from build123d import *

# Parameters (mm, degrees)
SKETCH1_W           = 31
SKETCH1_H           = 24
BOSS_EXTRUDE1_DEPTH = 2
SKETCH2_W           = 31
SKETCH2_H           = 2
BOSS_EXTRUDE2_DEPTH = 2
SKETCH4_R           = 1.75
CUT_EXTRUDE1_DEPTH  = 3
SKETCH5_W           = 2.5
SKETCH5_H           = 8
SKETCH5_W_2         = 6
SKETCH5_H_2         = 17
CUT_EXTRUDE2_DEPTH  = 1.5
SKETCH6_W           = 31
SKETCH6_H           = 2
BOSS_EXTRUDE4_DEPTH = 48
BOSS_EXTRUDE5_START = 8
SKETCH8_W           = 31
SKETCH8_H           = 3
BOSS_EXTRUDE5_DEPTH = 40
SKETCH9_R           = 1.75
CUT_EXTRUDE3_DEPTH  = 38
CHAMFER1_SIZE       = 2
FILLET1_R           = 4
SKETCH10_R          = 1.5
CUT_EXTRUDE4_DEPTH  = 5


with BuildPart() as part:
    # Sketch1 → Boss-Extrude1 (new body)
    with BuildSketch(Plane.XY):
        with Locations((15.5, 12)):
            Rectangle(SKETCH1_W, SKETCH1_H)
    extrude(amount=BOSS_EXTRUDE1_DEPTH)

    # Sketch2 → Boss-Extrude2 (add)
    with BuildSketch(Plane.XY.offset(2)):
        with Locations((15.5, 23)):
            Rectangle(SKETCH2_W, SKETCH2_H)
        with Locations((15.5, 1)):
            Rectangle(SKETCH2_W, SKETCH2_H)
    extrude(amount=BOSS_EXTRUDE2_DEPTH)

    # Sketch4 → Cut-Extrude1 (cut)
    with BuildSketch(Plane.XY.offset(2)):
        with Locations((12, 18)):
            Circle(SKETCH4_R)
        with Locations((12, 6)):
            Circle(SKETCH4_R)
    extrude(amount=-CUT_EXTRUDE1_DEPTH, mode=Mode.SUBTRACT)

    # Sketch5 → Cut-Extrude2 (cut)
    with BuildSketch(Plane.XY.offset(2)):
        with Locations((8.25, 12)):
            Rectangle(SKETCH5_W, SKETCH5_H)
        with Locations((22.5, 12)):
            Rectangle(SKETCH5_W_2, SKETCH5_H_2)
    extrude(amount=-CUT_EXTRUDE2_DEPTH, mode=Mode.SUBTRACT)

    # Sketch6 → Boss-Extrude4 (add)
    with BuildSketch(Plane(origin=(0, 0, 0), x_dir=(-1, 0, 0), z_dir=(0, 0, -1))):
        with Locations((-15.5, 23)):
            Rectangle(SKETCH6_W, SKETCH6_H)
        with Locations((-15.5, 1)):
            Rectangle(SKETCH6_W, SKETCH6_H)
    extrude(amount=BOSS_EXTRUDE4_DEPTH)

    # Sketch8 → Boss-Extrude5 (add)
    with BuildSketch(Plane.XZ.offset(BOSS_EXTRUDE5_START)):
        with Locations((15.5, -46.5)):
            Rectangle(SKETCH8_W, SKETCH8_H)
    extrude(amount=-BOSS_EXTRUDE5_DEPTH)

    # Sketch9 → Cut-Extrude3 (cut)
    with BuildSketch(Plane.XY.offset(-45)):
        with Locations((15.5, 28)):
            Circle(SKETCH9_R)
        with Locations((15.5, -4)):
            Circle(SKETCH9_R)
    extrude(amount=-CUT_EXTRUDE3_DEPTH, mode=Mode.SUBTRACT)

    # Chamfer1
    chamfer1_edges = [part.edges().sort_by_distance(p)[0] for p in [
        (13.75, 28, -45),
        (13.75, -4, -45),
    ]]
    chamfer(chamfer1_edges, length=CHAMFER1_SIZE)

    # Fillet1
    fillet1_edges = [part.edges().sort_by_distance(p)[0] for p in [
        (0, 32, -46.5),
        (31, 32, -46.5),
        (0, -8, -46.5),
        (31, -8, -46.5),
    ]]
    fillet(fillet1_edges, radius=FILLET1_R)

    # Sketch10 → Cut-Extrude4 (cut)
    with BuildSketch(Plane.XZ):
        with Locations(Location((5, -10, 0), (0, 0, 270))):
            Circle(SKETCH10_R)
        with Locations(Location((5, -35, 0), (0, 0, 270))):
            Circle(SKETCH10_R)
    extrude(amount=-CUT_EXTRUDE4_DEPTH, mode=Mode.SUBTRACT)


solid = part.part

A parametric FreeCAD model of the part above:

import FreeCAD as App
import Part
import Sketcher

V = App.Vector
Q = App.Units.Quantity


def edges_at(feature, points):
    """Names of the edges that pass closest to the given points."""
    edges = feature.Shape.Edges
    near = lambda p: min(range(len(edges)), key=lambda i: edges[i].distToShape(Part.Vertex(*p))[0])
    return sorted({f"Edge{near(p) + 1}" for p in points})


def add_polygon(sketch, points):
    """Adds a closed chain of lines whose ends are joined by coincident constraints."""
    first, n = sketch.GeometryCount, len(points)
    for a, b in zip(points, points[1:] + points[:1]):
        sketch.addGeometry(Part.LineSegment(App.Vector(*a, 0), App.Vector(*b, 0)), False)
    for i in range(n):
        sketch.addConstraint(Sketcher.Constraint("Coincident", first + i, 2, first + (i + 1) % n, 1))

doc = App.newDocument("Part")
params = doc.addObject("Spreadsheet::Sheet", "Params")
for row, (alias, value) in enumerate([
    ("sketch1_width", "31 mm"),
    ("sketch1_height", "24 mm"),
    ("pad1_length", "2 mm"),
    ("sketch2_width", "31 mm"),
    ("sketch2_height", "2 mm"),
    ("pad2_length", "2 mm"),
    ("sketch3_diameter", "3.5 mm"),
    ("pocket1_length", "3 mm"),
    ("sketch4_width", "6 mm"),
    ("sketch4_height", "8 mm"),
    ("sketch4_height2", "17 mm"),
    ("sketch4_width2", "2.5 mm"),
    ("pocket2_length", "1.5 mm"),
    ("sketch5_width", "31 mm"),
    ("sketch5_height", "2 mm"),
    ("pad3_length", "48 mm"),
    ("sketch6_width", "31 mm"),
    ("sketch6_height", "3 mm"),
    ("pad4_length", "40 mm"),
    ("sketch7_diameter", "3.5 mm"),
    ("pocket3_length", "38 mm"),
    ("chamfer_size", "2 mm"),
    ("fillet_radius", "4 mm"),
    ("sketch8_diameter", "3 mm"),
    ("pocket4_length", "5 mm"),
], start=1):
    params.set(f"A{row}", alias)
    params.set(f"B{row}", "=" + value)
    params.setAlias(f"B{row}", alias)

body = doc.addObject("PartDesign::Body", "Body")

# Sketch on XY plane
sketch1 = body.newObject("Sketcher::SketchObject", "Sketch")
sketch1.AttachmentSupport = (doc.getObject("XY_Plane"), [""])
sketch1.MapMode = "FlatFace"
add_polygon(sketch1, [(0, 24), (0, 0), (31, 0), (31, 24)])  # lines 0-3
sketch1.addConstraint(Sketcher.Constraint("Vertical", 0))
sketch1.addConstraint(Sketcher.Constraint("Horizontal", 1))
sketch1.addConstraint(Sketcher.Constraint("Vertical", 2))
sketch1.addConstraint(Sketcher.Constraint("Horizontal", 3))
sketch1.addConstraint(Sketcher.Constraint("Coincident", 0, 2, -1, 1))
sketch1.addConstraint(Sketcher.Constraint("DistanceX", 1, 1, 1, 2, Q("31 mm")))
sketch1.addConstraint(Sketcher.Constraint("DistanceY", 0, 2, 0, 1, Q("24 mm")))
sketch1.setExpression("Constraints[9]", "Params.sketch1_width")
sketch1.setExpression("Constraints[10]", "Params.sketch1_height")
pad1 = body.newObject("PartDesign::Pad", "Pad")
pad1.Profile = sketch1
pad1.setExpression("Length", "Params.pad1_length")

# Sketch on XY plane
sketch2 = body.newObject("Sketcher::SketchObject", "Sketch001")
sketch2.AttachmentSupport = (doc.getObject("XY_Plane"), [""])
sketch2.MapMode = "FlatFace"
sketch2.AttachmentOffset = App.Placement(V(0, 0, 2), App.Rotation())
add_polygon(sketch2, [(0, 24), (0, 22), (31, 22), (31, 24)])  # lines 0-3
add_polygon(sketch2, [(0, 2), (0, 0), (31, 0), (31, 2)])  # lines 4-7
sketch2.addConstraint(Sketcher.Constraint("Vertical", 0))
sketch2.addConstraint(Sketcher.Constraint("Horizontal", 1))
sketch2.addConstraint(Sketcher.Constraint("Vertical", 2))
sketch2.addConstraint(Sketcher.Constraint("Horizontal", 3))
sketch2.addConstraint(Sketcher.Constraint("Vertical", 4))
sketch2.addConstraint(Sketcher.Constraint("Horizontal", 5))
sketch2.addConstraint(Sketcher.Constraint("Vertical", 6))
sketch2.addConstraint(Sketcher.Constraint("Horizontal", 7))
sketch2.addConstraint(Sketcher.Constraint("Coincident", 4, 2, -1, 1))
sketch2.addConstraint(Sketcher.Constraint("PointOnObject", 0, 2, -2))
sketch2.addConstraint(Sketcher.Constraint("Vertical", 2, 2, 5, 2))
sketch2.addConstraint(Sketcher.Constraint("Equal", 2, 4))
sketch2.addConstraint(Sketcher.Constraint("DistanceX", 1, 1, 1, 2, Q("31 mm")))
sketch2.addConstraint(Sketcher.Constraint("DistanceY", 0, 2, 0, 1, Q("2 mm")))
sketch2.addConstraint(Sketcher.Constraint("DistanceY", -1, 1, 0, 2, Q("22 mm")))
sketch2.setExpression("Constraints[20]", "Params.sketch2_width")
sketch2.setExpression("Constraints[21]", "Params.sketch2_height")
pad2 = body.newObject("PartDesign::Pad", "Pad001")
pad2.Profile = sketch2
pad2.setExpression("Length", "Params.pad2_length")

# Sketch on XY plane
sketch3 = body.newObject("Sketcher::SketchObject", "Sketch002")
sketch3.AttachmentSupport = (doc.getObject("XY_Plane"), [""])
sketch3.MapMode = "FlatFace"
sketch3.AttachmentOffset = App.Placement(V(0, 0, 2), App.Rotation())
sketch3.addGeometry(Part.Circle(V(12, 18, 0), V(0, 0, 1), 1.8), False)
sketch3.addGeometry(Part.Circle(V(12, 6, 0), V(0, 0, 1), 1.8), False)
sketch3.addConstraint(Sketcher.Constraint("Equal", 0, 1))
sketch3.addConstraint(Sketcher.Constraint("Vertical", 0, 3, 1, 3))
sketch3.addConstraint(Sketcher.Constraint("Diameter", 0, Q("3.5 mm")))
sketch3.addConstraint(Sketcher.Constraint("DistanceX", -1, 1, 0, 3, Q("12 mm")))
sketch3.addConstraint(Sketcher.Constraint("DistanceY", -1, 1, 0, 3, Q("18 mm")))
sketch3.addConstraint(Sketcher.Constraint("DistanceY", -1, 1, 1, 3, Q("6 mm")))
sketch3.setExpression("Constraints[2]", "Params.sketch3_diameter")
pocket1 = body.newObject("PartDesign::Pocket", "Pocket")
pocket1.Profile = sketch3
pocket1.setExpression("Length", "Params.pocket1_length")

# Sketch on XY plane
sketch4 = body.newObject("Sketcher::SketchObject", "Sketch003")
sketch4.AttachmentSupport = (doc.getObject("XY_Plane"), [""])
sketch4.MapMode = "FlatFace"
sketch4.AttachmentOffset = App.Placement(V(0, 0, 2), App.Rotation())
add_polygon(sketch4, [(7, 16), (7, 8), (9.5, 8), (9.5, 16)])  # lines 0-3
add_polygon(sketch4, [(19.5, 20.5), (19.5, 3.5), (25.5, 3.5), (25.5, 20.5)])  # lines 4-7
sketch4.addConstraint(Sketcher.Constraint("Vertical", 0))
sketch4.addConstraint(Sketcher.Constraint("Horizontal", 1))
sketch4.addConstraint(Sketcher.Constraint("Vertical", 2))
sketch4.addConstraint(Sketcher.Constraint("Horizontal", 3))
sketch4.addConstraint(Sketcher.Constraint("Vertical", 4))
sketch4.addConstraint(Sketcher.Constraint("Horizontal", 5))
sketch4.addConstraint(Sketcher.Constraint("Vertical", 6))
sketch4.addConstraint(Sketcher.Constraint("Horizontal", 7))
sketch4.addConstraint(Sketcher.Constraint("DistanceX", 5, 1, 5, 2, Q("6 mm")))
sketch4.addConstraint(Sketcher.Constraint("DistanceY", 0, 2, 0, 1, Q("8 mm")))
sketch4.addConstraint(Sketcher.Constraint("DistanceY", 4, 2, 4, 1, Q("17 mm")))
sketch4.addConstraint(Sketcher.Constraint("DistanceX", 1, 1, 1, 2, Q("2.5 mm")))
sketch4.addConstraint(Sketcher.Constraint("DistanceX", -1, 1, 0, 2, Q("7 mm")))
sketch4.addConstraint(Sketcher.Constraint("DistanceY", -1, 1, 0, 2, Q("8 mm")))
sketch4.addConstraint(Sketcher.Constraint("DistanceX", 1, 2, 4, 2, Q("10 mm")))
sketch4.addConstraint(Sketcher.Constraint("DistanceY", -1, 1, 4, 2, Q("3.5 mm")))
sketch4.setExpression("Constraints[16]", "Params.sketch4_width")
sketch4.setExpression("Constraints[17]", "Params.sketch4_height")
sketch4.setExpression("Constraints[18]", "Params.sketch4_height2")
sketch4.setExpression("Constraints[19]", "Params.sketch4_width2")
pocket2 = body.newObject("PartDesign::Pocket", "Pocket001")
pocket2.Profile = sketch4
pocket2.setExpression("Length", "Params.pocket2_length")

# Sketch on XY plane
sketch5 = body.newObject("Sketcher::SketchObject", "Sketch004")
sketch5.AttachmentSupport = (doc.getObject("XY_Plane"), [""])
sketch5.MapMode = "FlatFace"
add_polygon(sketch5, [(31, 24), (31, 22), (0, 22), (0, 24)])  # lines 0-3
add_polygon(sketch5, [(31, 2), (31, 0), (0, 0), (0, 2)])  # lines 4-7
sketch5.addConstraint(Sketcher.Constraint("Vertical", 0))
sketch5.addConstraint(Sketcher.Constraint("Horizontal", 1))
sketch5.addConstraint(Sketcher.Constraint("Vertical", 2))
sketch5.addConstraint(Sketcher.Constraint("Horizontal", 3))
sketch5.addConstraint(Sketcher.Constraint("Vertical", 4))
sketch5.addConstraint(Sketcher.Constraint("Horizontal", 5))
sketch5.addConstraint(Sketcher.Constraint("Vertical", 6))
sketch5.addConstraint(Sketcher.Constraint("Horizontal", 7))
sketch5.addConstraint(Sketcher.Constraint("Coincident", 5, 2, -1, 1))
sketch5.addConstraint(Sketcher.Constraint("PointOnObject", 1, 2, -2))
sketch5.addConstraint(Sketcher.Constraint("Vertical", 3, 2, 4, 2))
sketch5.addConstraint(Sketcher.Constraint("Equal", 2, 4))
sketch5.addConstraint(Sketcher.Constraint("DistanceX", 1, 2, 1, 1, Q("31 mm")))
sketch5.addConstraint(Sketcher.Constraint("DistanceY", 0, 2, 0, 1, Q("2 mm")))
sketch5.addConstraint(Sketcher.Constraint("DistanceY", -1, 1, 0, 2, Q("22 mm")))
sketch5.setExpression("Constraints[20]", "Params.sketch5_width")
sketch5.setExpression("Constraints[21]", "Params.sketch5_height")
pad3 = body.newObject("PartDesign::Pad", "Pad002")
pad3.Profile = sketch5
pad3.setExpression("Length", "Params.pad3_length")
pad3.Reversed = True

# Sketch on XZ plane
sketch6 = body.newObject("Sketcher::SketchObject", "Sketch005")
sketch6.AttachmentSupport = (doc.getObject("XZ_Plane"), [""])
sketch6.MapMode = "FlatFace"
sketch6.AttachmentOffset = App.Placement(V(0, 0, 8), App.Rotation())
add_polygon(sketch6, [(0, -45), (0, -48), (31, -48), (31, -45)])  # lines 0-3
sketch6.addConstraint(Sketcher.Constraint("Vertical", 0))
sketch6.addConstraint(Sketcher.Constraint("Horizontal", 1))
sketch6.addConstraint(Sketcher.Constraint("Vertical", 2))
sketch6.addConstraint(Sketcher.Constraint("Horizontal", 3))
sketch6.addConstraint(Sketcher.Constraint("PointOnObject", 0, 2, -2))
sketch6.addConstraint(Sketcher.Constraint("DistanceX", 1, 1, 1, 2, Q("31 mm")))
sketch6.addConstraint(Sketcher.Constraint("DistanceY", 0, 2, 0, 1, Q("3 mm")))
sketch6.addConstraint(Sketcher.Constraint("DistanceY", 0, 2, -1, 1, Q("48 mm")))
sketch6.setExpression("Constraints[9]", "Params.sketch6_width")
sketch6.setExpression("Constraints[10]", "Params.sketch6_height")
pad4 = body.newObject("PartDesign::Pad", "Pad003")
pad4.Profile = sketch6
pad4.setExpression("Length", "Params.pad4_length")
pad4.Reversed = True

# Sketch on XY plane
sketch7 = body.newObject("Sketcher::SketchObject", "Sketch006")
sketch7.AttachmentSupport = (doc.getObject("XY_Plane"), [""])
sketch7.MapMode = "FlatFace"
sketch7.AttachmentOffset = App.Placement(V(0, 0, -45), App.Rotation())
sketch7.addGeometry(Part.Circle(V(15.5, 28, 0), V(0, 0, 1), 1.8), False)
sketch7.addGeometry(Part.Circle(V(15.5, -4, 0), V(0, 0, 1), 1.8), False)
sketch7.addConstraint(Sketcher.Constraint("Equal", 0, 1))
sketch7.addConstraint(Sketcher.Constraint("Vertical", 0, 3, 1, 3))
sketch7.addConstraint(Sketcher.Constraint("Diameter", 0, Q("3.5 mm")))
sketch7.addConstraint(Sketcher.Constraint("DistanceY", -1, 1, 0, 3, Q("28 mm")))
sketch7.addConstraint(Sketcher.Constraint("DistanceY", 1, 3, -1, 1, Q("4 mm")))
sketch7.addConstraint(Sketcher.Constraint("DistanceX", -1, 1, 0, 3, Q("15.5 mm")))
sketch7.setExpression("Constraints[2]", "Params.sketch7_diameter")
pocket3 = body.newObject("PartDesign::Pocket", "Pocket002")
pocket3.Profile = sketch7
pocket3.setExpression("Length", "Params.pocket3_length")
doc.recompute()

chamfer = body.newObject("PartDesign::Chamfer", "Chamfer")
chamfer.Base = (pocket3, edges_at(pocket3, [(13.75, 28, -45), (13.75, -4, -45)]))
chamfer.setExpression("Size", "Params.chamfer_size")
doc.recompute()

fillet = body.newObject("PartDesign::Fillet", "Fillet")
fillet.Base = (chamfer, edges_at(chamfer, [
    (0, 32, -46.5),
    (31, 32, -46.5),
    (0, -8, -46.5),
    (31, -8, -46.5),
]))
fillet.setExpression("Radius", "Params.fillet_radius")

# Sketch on XZ plane
sketch8 = body.newObject("Sketcher::SketchObject", "Sketch007")
sketch8.AttachmentSupport = (doc.getObject("XZ_Plane"), [""])
sketch8.MapMode = "FlatFace"
sketch8.addGeometry(Part.Circle(V(5, -10, 0), V(0, 0, 1), 1.5), False)
sketch8.addGeometry(Part.Circle(V(5, -35, 0), V(0, 0, 1), 1.5), False)
sketch8.addConstraint(Sketcher.Constraint("Equal", 0, 1))
sketch8.addConstraint(Sketcher.Constraint("Vertical", 0, 3, 1, 3))
sketch8.addConstraint(Sketcher.Constraint("Diameter", 0, Q("3 mm")))
sketch8.addConstraint(Sketcher.Constraint("DistanceX", -1, 1, 0, 3, Q("5 mm")))
sketch8.addConstraint(Sketcher.Constraint("DistanceY", 0, 3, -1, 1, Q("10 mm")))
sketch8.addConstraint(Sketcher.Constraint("DistanceY", 1, 3, -1, 1, Q("35 mm")))
sketch8.setExpression("Constraints[2]", "Params.sketch8_diameter")
pocket4 = body.newObject("PartDesign::Pocket", "Pocket003")
pocket4.Profile = sketch8
pocket4.setExpression("Length", "Params.pocket4_length")

doc.recompute()
